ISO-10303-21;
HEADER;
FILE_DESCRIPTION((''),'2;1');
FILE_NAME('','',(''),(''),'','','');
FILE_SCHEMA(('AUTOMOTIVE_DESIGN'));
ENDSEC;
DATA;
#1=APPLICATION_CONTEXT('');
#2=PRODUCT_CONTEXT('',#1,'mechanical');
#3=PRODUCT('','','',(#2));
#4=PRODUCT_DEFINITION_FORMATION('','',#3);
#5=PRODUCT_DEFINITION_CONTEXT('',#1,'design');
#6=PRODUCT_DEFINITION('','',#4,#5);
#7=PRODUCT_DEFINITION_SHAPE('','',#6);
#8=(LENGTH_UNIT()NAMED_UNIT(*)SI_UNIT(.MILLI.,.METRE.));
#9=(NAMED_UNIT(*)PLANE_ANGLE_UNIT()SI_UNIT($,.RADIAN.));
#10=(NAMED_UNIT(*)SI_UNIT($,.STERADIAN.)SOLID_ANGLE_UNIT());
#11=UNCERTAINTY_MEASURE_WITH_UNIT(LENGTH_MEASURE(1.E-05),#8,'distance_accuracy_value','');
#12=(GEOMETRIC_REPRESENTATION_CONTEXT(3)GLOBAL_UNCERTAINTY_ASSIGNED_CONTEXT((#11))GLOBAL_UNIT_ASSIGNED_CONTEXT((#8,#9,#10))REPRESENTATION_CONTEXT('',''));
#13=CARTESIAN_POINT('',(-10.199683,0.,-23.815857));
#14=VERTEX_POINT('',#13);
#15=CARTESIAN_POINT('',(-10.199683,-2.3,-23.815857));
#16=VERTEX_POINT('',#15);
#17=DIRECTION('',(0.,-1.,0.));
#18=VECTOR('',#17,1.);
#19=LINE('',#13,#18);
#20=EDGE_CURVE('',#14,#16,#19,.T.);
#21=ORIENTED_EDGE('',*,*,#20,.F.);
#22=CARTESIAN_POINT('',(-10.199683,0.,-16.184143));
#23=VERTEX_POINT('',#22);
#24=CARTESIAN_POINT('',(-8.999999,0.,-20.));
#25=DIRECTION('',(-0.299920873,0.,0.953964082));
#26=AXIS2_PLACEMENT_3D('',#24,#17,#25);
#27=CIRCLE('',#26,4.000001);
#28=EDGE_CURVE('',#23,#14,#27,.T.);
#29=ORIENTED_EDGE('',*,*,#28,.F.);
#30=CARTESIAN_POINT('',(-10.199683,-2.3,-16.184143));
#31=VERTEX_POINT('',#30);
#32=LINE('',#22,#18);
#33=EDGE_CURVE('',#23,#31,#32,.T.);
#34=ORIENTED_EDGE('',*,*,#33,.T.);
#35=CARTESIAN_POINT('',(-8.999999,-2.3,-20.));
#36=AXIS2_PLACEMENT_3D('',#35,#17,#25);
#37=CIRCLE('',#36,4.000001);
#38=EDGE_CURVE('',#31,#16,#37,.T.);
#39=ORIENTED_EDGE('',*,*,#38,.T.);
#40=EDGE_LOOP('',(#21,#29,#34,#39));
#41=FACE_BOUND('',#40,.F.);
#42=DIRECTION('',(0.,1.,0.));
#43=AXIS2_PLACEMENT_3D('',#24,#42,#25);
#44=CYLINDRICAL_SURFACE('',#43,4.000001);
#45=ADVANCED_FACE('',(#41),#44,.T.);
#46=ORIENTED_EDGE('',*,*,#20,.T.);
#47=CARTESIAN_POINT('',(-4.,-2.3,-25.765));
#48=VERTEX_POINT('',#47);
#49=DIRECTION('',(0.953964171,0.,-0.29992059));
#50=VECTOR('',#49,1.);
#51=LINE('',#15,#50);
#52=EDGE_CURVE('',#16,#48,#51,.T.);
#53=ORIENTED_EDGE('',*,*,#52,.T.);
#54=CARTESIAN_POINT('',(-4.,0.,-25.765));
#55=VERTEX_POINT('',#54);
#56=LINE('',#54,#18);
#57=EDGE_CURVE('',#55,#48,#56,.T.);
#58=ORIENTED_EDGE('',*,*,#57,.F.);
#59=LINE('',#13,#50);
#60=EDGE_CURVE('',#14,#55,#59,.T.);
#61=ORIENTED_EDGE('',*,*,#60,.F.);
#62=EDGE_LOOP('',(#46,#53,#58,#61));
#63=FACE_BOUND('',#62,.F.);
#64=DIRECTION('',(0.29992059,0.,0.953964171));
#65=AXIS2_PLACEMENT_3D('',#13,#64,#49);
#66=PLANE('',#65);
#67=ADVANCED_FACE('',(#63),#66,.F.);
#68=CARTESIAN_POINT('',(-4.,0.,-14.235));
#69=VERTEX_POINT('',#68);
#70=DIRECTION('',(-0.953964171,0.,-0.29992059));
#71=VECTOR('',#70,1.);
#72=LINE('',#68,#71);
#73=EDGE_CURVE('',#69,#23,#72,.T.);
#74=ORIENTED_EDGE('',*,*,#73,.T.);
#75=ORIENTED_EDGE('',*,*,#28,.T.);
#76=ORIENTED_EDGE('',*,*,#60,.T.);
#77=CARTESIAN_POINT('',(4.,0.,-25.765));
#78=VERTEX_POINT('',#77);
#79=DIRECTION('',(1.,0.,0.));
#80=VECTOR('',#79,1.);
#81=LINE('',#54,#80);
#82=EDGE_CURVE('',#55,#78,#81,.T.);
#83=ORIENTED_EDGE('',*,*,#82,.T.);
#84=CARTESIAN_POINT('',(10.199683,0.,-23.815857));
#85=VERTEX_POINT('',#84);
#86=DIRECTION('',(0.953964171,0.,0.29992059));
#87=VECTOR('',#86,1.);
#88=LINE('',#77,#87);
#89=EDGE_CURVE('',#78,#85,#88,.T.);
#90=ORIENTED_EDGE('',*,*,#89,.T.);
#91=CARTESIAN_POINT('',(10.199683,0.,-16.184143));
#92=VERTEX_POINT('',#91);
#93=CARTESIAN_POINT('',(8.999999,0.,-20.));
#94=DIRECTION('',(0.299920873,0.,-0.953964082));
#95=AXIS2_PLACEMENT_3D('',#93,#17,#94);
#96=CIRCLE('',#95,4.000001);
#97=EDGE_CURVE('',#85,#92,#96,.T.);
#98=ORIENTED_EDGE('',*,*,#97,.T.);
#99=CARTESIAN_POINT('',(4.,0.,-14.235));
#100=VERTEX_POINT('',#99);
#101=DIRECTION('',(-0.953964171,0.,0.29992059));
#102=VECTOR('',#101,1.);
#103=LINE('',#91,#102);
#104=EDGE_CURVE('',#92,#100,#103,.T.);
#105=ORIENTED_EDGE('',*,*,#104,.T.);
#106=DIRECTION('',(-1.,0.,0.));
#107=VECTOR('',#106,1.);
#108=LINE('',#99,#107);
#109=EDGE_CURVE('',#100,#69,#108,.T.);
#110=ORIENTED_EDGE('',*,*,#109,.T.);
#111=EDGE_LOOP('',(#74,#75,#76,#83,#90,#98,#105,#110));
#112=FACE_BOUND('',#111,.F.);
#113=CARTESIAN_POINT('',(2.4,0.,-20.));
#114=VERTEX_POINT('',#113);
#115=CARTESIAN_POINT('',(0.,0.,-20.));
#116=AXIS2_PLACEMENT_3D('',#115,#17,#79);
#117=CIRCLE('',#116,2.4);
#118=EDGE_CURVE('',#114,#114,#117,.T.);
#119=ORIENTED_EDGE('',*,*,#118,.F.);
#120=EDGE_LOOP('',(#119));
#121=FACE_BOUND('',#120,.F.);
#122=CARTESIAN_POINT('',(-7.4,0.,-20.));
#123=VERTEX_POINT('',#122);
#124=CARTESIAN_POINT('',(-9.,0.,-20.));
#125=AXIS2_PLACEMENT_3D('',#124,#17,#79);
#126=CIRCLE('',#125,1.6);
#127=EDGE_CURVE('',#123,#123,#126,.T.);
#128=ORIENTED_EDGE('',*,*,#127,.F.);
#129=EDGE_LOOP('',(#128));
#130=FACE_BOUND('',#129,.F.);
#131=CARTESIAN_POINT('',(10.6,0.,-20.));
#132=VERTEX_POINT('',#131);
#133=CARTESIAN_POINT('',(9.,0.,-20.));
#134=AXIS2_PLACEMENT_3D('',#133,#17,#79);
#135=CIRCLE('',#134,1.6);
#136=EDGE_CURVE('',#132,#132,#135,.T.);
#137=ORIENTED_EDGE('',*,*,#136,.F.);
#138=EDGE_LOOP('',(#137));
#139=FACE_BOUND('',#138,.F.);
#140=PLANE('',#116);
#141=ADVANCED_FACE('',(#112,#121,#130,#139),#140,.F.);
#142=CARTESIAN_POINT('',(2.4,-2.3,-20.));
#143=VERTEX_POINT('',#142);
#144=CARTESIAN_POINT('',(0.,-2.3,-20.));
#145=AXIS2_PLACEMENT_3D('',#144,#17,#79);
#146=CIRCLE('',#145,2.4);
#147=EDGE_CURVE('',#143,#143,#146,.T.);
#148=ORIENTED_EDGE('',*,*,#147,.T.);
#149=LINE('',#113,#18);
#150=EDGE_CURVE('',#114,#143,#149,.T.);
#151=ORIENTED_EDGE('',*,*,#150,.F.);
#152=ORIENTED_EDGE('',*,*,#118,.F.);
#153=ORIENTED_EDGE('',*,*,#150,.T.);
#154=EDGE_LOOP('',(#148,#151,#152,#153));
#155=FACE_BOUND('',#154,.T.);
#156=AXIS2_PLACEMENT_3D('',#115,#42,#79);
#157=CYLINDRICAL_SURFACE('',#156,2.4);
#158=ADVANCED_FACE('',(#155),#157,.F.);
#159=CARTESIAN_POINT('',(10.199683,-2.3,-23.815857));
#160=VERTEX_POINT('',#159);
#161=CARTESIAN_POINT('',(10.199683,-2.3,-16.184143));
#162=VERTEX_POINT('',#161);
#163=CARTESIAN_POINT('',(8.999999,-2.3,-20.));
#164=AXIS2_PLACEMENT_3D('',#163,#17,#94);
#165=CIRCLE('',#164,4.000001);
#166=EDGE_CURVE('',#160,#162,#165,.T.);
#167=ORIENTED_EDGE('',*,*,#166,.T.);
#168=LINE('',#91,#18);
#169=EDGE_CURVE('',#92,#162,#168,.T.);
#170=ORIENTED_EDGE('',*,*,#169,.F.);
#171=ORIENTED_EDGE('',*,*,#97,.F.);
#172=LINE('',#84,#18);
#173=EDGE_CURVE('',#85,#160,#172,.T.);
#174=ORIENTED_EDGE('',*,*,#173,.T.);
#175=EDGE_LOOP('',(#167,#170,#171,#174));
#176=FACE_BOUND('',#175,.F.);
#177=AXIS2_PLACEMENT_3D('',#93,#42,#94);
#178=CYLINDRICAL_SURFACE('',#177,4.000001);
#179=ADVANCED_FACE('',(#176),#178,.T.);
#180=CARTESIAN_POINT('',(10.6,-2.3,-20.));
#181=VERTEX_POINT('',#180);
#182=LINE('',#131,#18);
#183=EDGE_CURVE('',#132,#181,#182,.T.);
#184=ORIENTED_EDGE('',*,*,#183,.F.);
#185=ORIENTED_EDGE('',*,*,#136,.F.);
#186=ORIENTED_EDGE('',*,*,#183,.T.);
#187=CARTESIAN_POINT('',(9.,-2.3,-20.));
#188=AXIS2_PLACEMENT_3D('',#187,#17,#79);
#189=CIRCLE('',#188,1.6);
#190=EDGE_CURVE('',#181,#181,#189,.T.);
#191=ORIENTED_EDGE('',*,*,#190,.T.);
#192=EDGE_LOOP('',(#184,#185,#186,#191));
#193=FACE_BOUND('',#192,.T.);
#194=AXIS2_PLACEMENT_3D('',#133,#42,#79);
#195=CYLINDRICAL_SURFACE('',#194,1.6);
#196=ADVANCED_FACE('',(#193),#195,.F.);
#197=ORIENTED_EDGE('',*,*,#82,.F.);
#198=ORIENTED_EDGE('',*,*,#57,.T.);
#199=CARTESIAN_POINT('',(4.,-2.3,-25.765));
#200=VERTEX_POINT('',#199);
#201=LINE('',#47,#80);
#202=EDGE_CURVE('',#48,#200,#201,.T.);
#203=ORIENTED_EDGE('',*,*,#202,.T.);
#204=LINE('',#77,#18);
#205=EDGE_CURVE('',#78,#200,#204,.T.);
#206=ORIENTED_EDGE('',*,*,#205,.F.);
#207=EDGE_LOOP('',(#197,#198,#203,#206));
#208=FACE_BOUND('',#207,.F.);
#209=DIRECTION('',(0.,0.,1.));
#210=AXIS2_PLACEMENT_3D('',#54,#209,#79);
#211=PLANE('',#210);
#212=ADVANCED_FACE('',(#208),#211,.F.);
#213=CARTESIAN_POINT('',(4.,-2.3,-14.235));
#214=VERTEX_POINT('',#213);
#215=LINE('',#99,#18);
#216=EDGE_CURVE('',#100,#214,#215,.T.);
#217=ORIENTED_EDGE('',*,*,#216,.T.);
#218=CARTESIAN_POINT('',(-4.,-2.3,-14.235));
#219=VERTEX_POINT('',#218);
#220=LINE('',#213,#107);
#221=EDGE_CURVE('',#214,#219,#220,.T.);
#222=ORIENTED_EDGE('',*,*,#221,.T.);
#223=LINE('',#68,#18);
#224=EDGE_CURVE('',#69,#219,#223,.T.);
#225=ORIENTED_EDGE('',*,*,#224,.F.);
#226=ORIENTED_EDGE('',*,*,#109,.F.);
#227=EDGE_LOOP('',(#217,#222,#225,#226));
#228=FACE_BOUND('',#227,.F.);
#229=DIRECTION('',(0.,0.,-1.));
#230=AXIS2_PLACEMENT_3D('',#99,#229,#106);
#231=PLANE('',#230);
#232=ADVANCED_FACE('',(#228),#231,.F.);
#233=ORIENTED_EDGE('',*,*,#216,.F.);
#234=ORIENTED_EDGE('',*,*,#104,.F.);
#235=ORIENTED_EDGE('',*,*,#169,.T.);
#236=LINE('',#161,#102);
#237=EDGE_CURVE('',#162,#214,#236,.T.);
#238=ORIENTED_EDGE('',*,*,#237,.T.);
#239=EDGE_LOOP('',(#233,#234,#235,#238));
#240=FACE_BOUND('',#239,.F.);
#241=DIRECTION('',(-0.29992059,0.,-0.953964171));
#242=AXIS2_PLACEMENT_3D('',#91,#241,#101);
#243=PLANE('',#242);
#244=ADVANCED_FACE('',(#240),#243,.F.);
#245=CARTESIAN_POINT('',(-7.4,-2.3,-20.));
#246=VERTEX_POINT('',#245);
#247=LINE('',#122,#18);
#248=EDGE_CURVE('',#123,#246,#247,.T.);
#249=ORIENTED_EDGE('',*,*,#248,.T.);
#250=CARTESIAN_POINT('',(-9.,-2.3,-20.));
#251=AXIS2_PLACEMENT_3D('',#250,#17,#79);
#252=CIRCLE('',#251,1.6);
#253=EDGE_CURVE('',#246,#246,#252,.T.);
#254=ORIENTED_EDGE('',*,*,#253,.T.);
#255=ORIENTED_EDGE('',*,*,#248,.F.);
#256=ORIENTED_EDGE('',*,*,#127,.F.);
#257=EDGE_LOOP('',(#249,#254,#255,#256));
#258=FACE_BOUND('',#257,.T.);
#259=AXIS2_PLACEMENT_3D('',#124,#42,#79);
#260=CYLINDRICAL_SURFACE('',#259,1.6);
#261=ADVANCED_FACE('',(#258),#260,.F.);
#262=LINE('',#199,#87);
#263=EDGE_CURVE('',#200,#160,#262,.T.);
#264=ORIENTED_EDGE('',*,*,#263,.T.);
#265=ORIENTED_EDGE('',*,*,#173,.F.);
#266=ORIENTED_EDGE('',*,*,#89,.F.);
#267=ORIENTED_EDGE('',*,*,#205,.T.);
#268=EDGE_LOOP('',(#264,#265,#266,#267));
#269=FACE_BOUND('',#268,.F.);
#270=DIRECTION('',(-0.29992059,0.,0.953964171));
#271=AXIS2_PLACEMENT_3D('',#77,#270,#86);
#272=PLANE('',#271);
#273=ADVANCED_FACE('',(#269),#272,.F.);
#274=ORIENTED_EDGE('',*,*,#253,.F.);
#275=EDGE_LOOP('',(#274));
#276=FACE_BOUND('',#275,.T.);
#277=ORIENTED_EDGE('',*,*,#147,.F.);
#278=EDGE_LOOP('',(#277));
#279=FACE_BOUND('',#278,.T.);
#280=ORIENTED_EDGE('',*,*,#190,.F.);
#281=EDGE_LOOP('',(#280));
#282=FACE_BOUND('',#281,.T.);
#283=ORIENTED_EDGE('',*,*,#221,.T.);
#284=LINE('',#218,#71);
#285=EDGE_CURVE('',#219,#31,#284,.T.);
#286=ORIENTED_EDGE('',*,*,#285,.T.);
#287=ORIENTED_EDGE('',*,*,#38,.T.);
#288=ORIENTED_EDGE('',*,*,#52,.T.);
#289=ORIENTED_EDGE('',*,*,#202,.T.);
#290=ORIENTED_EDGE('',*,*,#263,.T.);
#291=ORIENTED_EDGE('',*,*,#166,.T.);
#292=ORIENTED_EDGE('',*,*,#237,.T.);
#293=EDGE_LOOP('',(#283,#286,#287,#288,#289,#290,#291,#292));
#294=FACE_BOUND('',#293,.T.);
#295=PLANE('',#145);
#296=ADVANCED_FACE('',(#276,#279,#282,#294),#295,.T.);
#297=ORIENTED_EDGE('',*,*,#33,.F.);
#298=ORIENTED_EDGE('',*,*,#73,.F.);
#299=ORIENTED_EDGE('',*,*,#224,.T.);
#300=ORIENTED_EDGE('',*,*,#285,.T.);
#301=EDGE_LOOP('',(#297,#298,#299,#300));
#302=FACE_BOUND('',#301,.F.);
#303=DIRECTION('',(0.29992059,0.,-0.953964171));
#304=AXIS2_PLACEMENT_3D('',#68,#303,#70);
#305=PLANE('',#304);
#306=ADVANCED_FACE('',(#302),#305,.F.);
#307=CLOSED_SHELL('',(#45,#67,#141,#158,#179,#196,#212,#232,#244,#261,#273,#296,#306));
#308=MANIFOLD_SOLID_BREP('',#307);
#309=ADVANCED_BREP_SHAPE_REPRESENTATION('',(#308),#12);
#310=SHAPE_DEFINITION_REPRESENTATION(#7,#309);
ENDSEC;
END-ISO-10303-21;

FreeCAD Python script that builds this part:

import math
import FreeCAD as App
import Part
import Sketcher

V = App.Vector
Q = App.Units.Quantity

doc = App.newDocument("Part")
body = doc.addObject("PartDesign::Body", "Body")

# Sketch on XZ plane
sketch1 = body.newObject("Sketcher::SketchObject", "Sketch")
sketch1.AttachmentSupport = (doc.getObject("XZ_Plane"), [""])
sketch1.MapMode = "FlatFace"
sketch1.addGeometry(Part.ArcOfCircle(Part.Circle(V(8.999999, -20, 0), V(0, 0, 1), 4.000001), math.radians(-72.547149), math.radians(72.547149)), False)
sketch1.addGeometry(Part.LineSegment(V(10.199683, -16.184143, 0), V(4, -14.235, 0)), False)
sketch1.addGeometry(Part.LineSegment(V(4, -14.235, 0), V(-4, -14.235, 0)), False)
sketch1.addGeometry(Part.LineSegment(V(-4, -14.235, 0), V(-10.199683, -16.184143, 0)), False)
sketch1.addGeometry(Part.ArcOfCircle(Part.Circle(V(-8.999999, -20, 0), V(0, 0, 1), 4.000001), math.radians(107.452851), math.radians(252.547149)), False)
sketch1.addGeometry(Part.LineSegment(V(-10.199683, -23.815857, 0), V(-4, -25.765, 0)), False)
sketch1.addGeometry(Part.LineSegment(V(-4, -25.765, 0), V(4, -25.765, 0)), False)
sketch1.addGeometry(Part.LineSegment(V(4, -25.765, 0), V(10.199683, -23.815857, 0)), False)
sketch1.addGeometry(Part.Circle(V(-9, -20, 0), V(0, 0, 1), 1.6), False)
sketch1.addGeometry(Part.Circle(V(0, -20, 0), V(0, 0, 1), 2.4), False)
sketch1.addGeometry(Part.Circle(V(9, -20, 0), V(0, 0, 1), 1.6), False)
sketch1.addConstraint(Sketcher.Constraint("Tangent", 0, 2, 1, 1))
sketch1.addConstraint(Sketcher.Constraint("Coincident", 1, 2, 2, 1))
sketch1.addConstraint(Sketcher.Constraint("Coincident", 2, 2, 3, 1))
sketch1.addConstraint(Sketcher.Constraint("Tangent", 3, 2, 4, 1))
sketch1.addConstraint(Sketcher.Constraint("Tangent", 4, 2, 5, 1))
sketch1.addConstraint(Sketcher.Constraint("Coincident", 5, 2, 6, 1))
sketch1.addConstraint(Sketcher.Constraint("Coincident", 6, 2, 7, 1))
sketch1.addConstraint(Sketcher.Constraint("Tangent", 7, 2, 0, 1))
sketch1.addConstraint(Sketcher.Constraint("Horizontal", 2))
sketch1.addConstraint(Sketcher.Constraint("Horizontal", 6))
sketch1.addConstraint(Sketcher.Constraint("Coincident", 8, 3, 4, 3))
sketch1.addConstraint(Sketcher.Constraint("Coincident", 10, 3, 0, 3))
sketch1.addConstraint(Sketcher.Constraint("Equal", 0, 4))
sketch1.addConstraint(Sketcher.Constraint("Equal", 8, 10))
sketch1.addConstraint(Sketcher.Constraint("Symmetric", 0, 3, 4, 3, -2))
sketch1.addConstraint(Sketcher.Constraint("PointOnObject", 9, 3, -2))
sketch1.addConstraint(Sketcher.Constraint("Parallel", 1, 5))
sketch1.addConstraint(Sketcher.Constraint("Parallel", 3, 7))
sketch1.addConstraint(Sketcher.Constraint("Horizontal", 8, 3, 9, 3))
sketch1.addConstraint(Sketcher.Constraint("Horizontal", 0, 2, 3, 2))
sketch1.addConstraint(Sketcher.Constraint("Vertical", 2, 2, 5, 2))
sketch1.addConstraint(Sketcher.Constraint("Radius", 0, Q("4.000001 mm")))
sketch1.addConstraint(Sketcher.Constraint("Diameter", 8, Q("3.2 mm")))
sketch1.addConstraint(Sketcher.Constraint("Diameter", 9, Q("4.8 mm")))
sketch1.addConstraint(Sketcher.Constraint("DistanceX", 2, 2, 2, 1, Q("8 mm")))
sketch1.addConstraint(Sketcher.Constraint("DistanceX", -1, 1, 0, 3, Q("8.999999 mm")))
sketch1.addConstraint(Sketcher.Constraint("DistanceY", 0, 3, -1, 1, Q("20 mm")))
sketch1.addConstraint(Sketcher.Constraint("DistanceY", 1, 2, -1, 1, Q("14.235 mm")))
pad1 = body.newObject("PartDesign::Pad", "Pad")
pad1.Profile = sketch1
pad1.Length = 2.3

doc.recompute()
